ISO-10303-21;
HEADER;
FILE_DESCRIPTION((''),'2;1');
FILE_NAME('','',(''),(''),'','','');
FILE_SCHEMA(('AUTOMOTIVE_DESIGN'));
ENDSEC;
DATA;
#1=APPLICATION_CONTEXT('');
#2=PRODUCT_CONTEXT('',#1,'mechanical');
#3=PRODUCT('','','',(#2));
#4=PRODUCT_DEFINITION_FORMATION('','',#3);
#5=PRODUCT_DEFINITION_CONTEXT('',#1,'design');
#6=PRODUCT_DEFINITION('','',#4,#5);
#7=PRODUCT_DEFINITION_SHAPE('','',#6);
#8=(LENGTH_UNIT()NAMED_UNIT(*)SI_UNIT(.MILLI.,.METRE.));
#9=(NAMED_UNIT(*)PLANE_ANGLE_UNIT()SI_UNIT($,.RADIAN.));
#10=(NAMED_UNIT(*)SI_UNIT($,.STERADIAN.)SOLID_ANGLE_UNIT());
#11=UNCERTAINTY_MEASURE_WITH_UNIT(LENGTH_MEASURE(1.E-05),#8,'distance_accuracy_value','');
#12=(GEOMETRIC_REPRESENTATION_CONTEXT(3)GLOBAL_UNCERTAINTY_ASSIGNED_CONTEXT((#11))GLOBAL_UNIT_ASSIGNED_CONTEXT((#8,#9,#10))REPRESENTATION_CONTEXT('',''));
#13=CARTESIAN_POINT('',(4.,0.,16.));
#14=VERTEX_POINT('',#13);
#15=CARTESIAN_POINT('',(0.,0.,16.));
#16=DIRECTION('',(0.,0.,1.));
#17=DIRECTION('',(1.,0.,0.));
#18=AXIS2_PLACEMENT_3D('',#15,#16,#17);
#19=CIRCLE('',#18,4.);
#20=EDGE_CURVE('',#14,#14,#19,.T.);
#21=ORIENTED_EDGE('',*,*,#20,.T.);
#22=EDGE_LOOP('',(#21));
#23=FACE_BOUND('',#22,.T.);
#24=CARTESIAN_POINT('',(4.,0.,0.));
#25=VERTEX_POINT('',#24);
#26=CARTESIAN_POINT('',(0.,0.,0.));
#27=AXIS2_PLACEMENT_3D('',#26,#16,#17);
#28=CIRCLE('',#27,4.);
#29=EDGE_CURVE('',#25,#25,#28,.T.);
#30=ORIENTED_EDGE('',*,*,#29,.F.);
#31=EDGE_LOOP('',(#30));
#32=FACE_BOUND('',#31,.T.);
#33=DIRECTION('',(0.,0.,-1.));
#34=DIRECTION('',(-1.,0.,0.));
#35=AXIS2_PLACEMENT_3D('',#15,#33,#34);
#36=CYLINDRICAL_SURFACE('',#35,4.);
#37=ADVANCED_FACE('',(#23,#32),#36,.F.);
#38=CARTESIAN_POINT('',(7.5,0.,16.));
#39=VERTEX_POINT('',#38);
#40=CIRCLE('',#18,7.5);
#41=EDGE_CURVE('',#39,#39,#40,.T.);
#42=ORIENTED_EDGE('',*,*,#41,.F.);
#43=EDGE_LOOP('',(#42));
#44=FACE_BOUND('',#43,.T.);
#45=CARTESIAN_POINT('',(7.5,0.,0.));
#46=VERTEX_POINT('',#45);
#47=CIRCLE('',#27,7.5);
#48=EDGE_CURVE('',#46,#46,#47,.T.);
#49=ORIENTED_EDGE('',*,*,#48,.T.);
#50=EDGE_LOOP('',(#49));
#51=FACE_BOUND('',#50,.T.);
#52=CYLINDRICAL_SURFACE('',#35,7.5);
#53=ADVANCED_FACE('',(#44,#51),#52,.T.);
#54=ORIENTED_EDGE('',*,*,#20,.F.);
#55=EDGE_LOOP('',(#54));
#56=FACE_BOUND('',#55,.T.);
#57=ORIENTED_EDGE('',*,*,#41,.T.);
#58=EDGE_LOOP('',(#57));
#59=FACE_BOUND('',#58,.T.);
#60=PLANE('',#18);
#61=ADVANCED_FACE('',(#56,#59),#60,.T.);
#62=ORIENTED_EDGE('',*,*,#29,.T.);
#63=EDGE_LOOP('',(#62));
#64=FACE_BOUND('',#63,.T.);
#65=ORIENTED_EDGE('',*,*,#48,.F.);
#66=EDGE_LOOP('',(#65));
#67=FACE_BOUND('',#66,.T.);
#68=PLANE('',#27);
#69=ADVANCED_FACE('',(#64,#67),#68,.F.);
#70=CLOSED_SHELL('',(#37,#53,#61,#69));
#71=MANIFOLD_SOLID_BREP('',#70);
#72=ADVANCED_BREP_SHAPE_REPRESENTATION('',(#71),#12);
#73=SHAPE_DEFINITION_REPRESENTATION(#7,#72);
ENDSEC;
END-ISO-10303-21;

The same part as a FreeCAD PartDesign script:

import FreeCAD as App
import Part
import Sketcher

doc = App.newDocument("Part")
body = doc.addObject("PartDesign::Body", "Body")

sketch1 = doc.addObject("Sketcher::SketchObject", "Sketch")
body.addObject(sketch1)
sketch1.AttachmentSupport = (doc.XY_Plane, [""])
sketch1.MapMode = "FlatFace"
sketch1.addGeometry([
    Part.Circle(App.Vector(0, 0, 0), App.Vector(0, 0, 1), 7.5),
    Part.Circle(App.Vector(0, 0, 0), App.Vector(0, 0, 1), 4),
], False)
sketch1.addConstraint([
    Sketcher.Constraint("Coincident", 0, 3, -1, 1),
    Sketcher.Constraint("Coincident", 1, 3, -1, 1),
    Sketcher.Constraint("Diameter", 0, 15.0),
    Sketcher.Constraint("Diameter", 1, 8.0),
])
pad1 = doc.addObject("PartDesign::Pad", "Pad")
body.addObject(pad1)
pad1.Profile = sketch1
pad1.Length = 16

doc.recompute()
